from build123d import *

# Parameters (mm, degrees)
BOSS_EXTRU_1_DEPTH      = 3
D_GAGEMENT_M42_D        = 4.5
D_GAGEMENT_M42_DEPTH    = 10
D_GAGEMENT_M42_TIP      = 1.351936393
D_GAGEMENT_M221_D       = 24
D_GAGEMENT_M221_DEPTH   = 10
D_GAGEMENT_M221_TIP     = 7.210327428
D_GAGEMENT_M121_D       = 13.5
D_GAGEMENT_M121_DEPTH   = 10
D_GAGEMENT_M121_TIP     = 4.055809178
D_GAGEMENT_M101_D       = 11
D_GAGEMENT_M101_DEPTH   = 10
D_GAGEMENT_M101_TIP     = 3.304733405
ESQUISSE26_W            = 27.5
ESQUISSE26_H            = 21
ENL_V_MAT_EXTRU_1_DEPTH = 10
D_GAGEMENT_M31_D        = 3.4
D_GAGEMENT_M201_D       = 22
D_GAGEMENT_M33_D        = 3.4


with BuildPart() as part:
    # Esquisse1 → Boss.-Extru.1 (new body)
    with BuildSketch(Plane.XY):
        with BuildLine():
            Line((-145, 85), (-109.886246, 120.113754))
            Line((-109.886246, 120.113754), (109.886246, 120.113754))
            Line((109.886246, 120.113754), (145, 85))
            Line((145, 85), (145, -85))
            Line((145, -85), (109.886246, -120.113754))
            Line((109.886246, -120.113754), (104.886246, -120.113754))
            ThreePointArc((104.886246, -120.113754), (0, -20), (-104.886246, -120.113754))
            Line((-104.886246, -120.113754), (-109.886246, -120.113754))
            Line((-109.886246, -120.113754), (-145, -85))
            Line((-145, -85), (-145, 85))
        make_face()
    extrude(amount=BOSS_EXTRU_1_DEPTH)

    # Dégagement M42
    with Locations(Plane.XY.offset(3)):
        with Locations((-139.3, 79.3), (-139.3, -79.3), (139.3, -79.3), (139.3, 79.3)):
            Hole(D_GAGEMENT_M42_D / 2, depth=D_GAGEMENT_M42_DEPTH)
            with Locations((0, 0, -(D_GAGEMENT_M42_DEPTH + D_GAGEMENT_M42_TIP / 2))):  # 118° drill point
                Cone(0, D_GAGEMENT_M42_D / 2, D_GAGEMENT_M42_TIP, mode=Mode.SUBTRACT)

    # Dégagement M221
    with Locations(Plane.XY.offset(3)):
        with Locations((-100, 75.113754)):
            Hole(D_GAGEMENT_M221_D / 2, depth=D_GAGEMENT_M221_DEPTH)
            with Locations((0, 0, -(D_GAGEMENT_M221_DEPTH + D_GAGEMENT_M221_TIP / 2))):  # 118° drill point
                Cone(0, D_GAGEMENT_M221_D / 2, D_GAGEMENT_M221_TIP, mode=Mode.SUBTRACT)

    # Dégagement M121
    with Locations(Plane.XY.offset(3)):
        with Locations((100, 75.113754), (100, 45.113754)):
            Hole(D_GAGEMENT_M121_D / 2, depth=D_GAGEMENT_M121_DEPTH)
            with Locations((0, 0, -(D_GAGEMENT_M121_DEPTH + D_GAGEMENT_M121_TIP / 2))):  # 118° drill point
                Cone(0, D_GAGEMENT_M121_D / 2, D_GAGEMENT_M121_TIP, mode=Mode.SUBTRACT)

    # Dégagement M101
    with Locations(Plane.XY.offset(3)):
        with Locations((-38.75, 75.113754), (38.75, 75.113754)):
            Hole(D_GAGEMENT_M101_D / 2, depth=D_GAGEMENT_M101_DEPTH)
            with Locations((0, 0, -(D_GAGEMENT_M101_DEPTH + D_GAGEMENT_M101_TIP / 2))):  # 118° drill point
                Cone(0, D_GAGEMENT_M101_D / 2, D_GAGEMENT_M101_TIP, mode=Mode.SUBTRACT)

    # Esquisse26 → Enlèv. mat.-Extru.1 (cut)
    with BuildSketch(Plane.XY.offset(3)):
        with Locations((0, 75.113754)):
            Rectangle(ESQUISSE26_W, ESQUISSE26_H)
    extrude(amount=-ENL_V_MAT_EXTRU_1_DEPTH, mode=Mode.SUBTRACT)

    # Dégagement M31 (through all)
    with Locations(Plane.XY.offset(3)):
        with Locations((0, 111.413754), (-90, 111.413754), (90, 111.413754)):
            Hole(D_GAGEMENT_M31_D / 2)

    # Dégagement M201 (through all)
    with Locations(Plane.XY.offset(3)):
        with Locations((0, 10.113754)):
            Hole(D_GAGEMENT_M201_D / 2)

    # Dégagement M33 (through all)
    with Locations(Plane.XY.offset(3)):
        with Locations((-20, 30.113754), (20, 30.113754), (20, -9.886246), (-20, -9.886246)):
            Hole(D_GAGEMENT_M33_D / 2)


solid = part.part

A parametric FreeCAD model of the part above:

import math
import FreeCAD as App
import Part
import Sketcher
from FreeCAD import Vector


def add_polygon(sketch, points):
    """Adds a closed chain of lines whose ends are joined by coincident constraints."""
    first, n = sketch.GeometryCount, len(points)
    for a, b in zip(points, points[1:] + points[:1]):
        sketch.addGeometry(Part.LineSegment(App.Vector(*a, 0), App.Vector(*b, 0)), False)
    for i in range(n):
        sketch.addConstraint(Sketcher.Constraint("Coincident", first + i, 2, first + (i + 1) % n, 1))

doc = App.newDocument("Part")
body = doc.addObject("PartDesign::Body", "Body")

sketch1 = doc.addObject("Sketcher::SketchObject", "Sketch")
body.addObject(sketch1)
sketch1.AttachmentSupport = (doc.XY_Plane, [""])
sketch1.MapMode = "FlatFace"
sketch1.addGeometry([
    Part.LineSegment(Vector(-110, 120, 0), Vector(-145, 85, 0)),
    Part.LineSegment(Vector(-145, 85, 0), Vector(-145, -85, 0)),
    Part.LineSegment(Vector(-145, -85, 0), Vector(-110, -120, 0)),
    Part.LineSegment(Vector(-110, -120, 0), Vector(-105, -120, 0)),
    Part.ArcOfCircle(Part.Circle(Vector(0, -125, 0), Vector(0, 0, 1), 105), math.radians(3), math.radians(177)),
    Part.LineSegment(Vector(105, -120, 0), Vector(110, -120, 0)),
    Part.LineSegment(Vector(110, -120, 0), Vector(145, -85, 0)),
    Part.LineSegment(Vector(145, -85, 0), Vector(145, 85, 0)),
    Part.LineSegment(Vector(145, 85, 0), Vector(110, 120, 0)),
    Part.LineSegment(Vector(110, 120, 0), Vector(-110, 120, 0)),
], False)
sketch1.addConstraint([
    Sketcher.Constraint("Coincident", 0, 2, 1, 1),
    Sketcher.Constraint("Coincident", 1, 2, 2, 1),
    Sketcher.Constraint("Coincident", 2, 2, 3, 1),
    Sketcher.Constraint("Coincident", 3, 2, 4, 2),
    Sketcher.Constraint("Coincident", 4, 1, 5, 1),
    Sketcher.Constraint("Coincident", 5, 2, 6, 1),
    Sketcher.Constraint("Coincident", 6, 2, 7, 1),
    Sketcher.Constraint("Coincident", 7, 2, 8, 1),
    Sketcher.Constraint("Coincident", 8, 2, 9, 1),
    Sketcher.Constraint("Coincident", 9, 2, 0, 1),
    Sketcher.Constraint("Vertical", 1),
    Sketcher.Constraint("Horizontal", 3),
    Sketcher.Constraint("Horizontal", 5),
    Sketcher.Constraint("Vertical", 7),
    Sketcher.Constraint("Horizontal", 9),
    Sketcher.Constraint("Symmetric", 0, 2, 6, 2, -1, 1),
    Sketcher.Constraint("Symmetric", 2, 2, 8, 2, -1, 1),
    Sketcher.Constraint("Symmetric", 5, 2, 9, 2, -1, 1),
    Sketcher.Constraint("PointOnObject", 4, 3, -2),
    Sketcher.Constraint("Perpendicular", 0, 2),
    Sketcher.Constraint("Perpendicular", 6, 8),
    Sketcher.Constraint("Horizontal", 1, 2, 6, 2),
    Sketcher.Constraint("Vertical", 5, 2, 8, 2),
    Sketcher.Constraint("Radius", 4, 105.0),
    Sketcher.Constraint("DistanceX", 3, 1, 3, 2, 5.0),
    Sketcher.Constraint("DistanceY", 1, 2, 1, 1, 170.0),
    Sketcher.Constraint("DistanceY", 4, 3, -1, 1, 125.0),
    Sketcher.Constraint("DistanceX", 0, 2, -1, 1, 145.0),
])
pad1 = doc.addObject("PartDesign::Pad", "Pad")
body.addObject(pad1)
pad1.Profile = sketch1
pad1.Length = 3

sketch2 = doc.addObject("Sketcher::SketchObject", "Sketch001")
body.addObject(sketch2)
sketch2.AttachmentSupport = (doc.XY_Plane, [""])
sketch2.MapMode = "FlatFace"
sketch2.AttachmentOffset = App.Placement(Vector(0, 0, 3), App.Rotation())
sketch2.addGeometry([
    Part.Circle(Vector(-139.3, 79.3, 0), Vector(0, 0, 1), 2.2),
    Part.Circle(Vector(-139.3, -79.3, 0), Vector(0, 0, 1), 2.2),
    Part.Circle(Vector(139.3, -79.3, 0), Vector(0, 0, 1), 2.2),
    Part.Circle(Vector(139.3, 79.3, 0), Vector(0, 0, 1), 2.2),
], False)
sketch2.addConstraint([
    Sketcher.Constraint("Equal", 0, 1),
    Sketcher.Constraint("Equal", 1, 2),
    Sketcher.Constraint("Equal", 2, 3),
    Sketcher.Constraint("Symmetric", 0, 3, 2, 3, -1, 1),
    Sketcher.Constraint("Symmetric", 1, 3, 3, 3, -1, 1),
    Sketcher.Constraint("Symmetric", 1, 3, 2, 3, -2),
    Sketcher.Constraint("Diameter", 0, 4.5),
    Sketcher.Constraint("DistanceX", 0, 3, -1, 1, 139.3),
    Sketcher.Constraint("DistanceY", -1, 1, 0, 3, 79.3),
])
doc.recompute()
hole = doc.addObject("PartDesign::Hole", "Hole")
body.addObject(hole)
hole.Profile = sketch2
hole.ThreadType = "None"
hole.Diameter = 4.5
hole.DepthType = "Dimension"
hole.Depth = 10
hole.DrillPoint = "Angled"
hole.DrillPointAngle = 118

sketch3 = doc.addObject("Sketcher::SketchObject", "Sketch002")
body.addObject(sketch3)
sketch3.AttachmentSupport = (doc.XY_Plane, [""])
sketch3.MapMode = "FlatFace"
sketch3.AttachmentOffset = App.Placement(Vector(0, 0, 3), App.Rotation())
sketch3.addGeometry(Part.Circle(Vector(-100, 75, 0), Vector(0, 0, 1), 12), False)
sketch3.addConstraint([
    Sketcher.Constraint("Diameter", 0, 24.0),
    Sketcher.Constraint("DistanceX", 0, 3, -1, 1, 100.0),
    Sketcher.Constraint("DistanceY", -1, 1, 0, 3, 75.113754),
])
doc.recompute()
hole2 = doc.addObject("PartDesign::Hole", "Hole001")
body.addObject(hole2)
hole2.Profile = sketch3
hole2.ThreadType = "None"
hole2.Diameter = 24
hole2.DepthType = "Dimension"
hole2.Depth = 10
hole2.DrillPoint = "Angled"
hole2.DrillPointAngle = 118

sketch4 = doc.addObject("Sketcher::SketchObject", "Sketch003")
body.addObject(sketch4)
sketch4.AttachmentSupport = (doc.XY_Plane, [""])
sketch4.MapMode = "FlatFace"
sketch4.AttachmentOffset = App.Placement(Vector(0, 0, 3), App.Rotation())
sketch4.addGeometry([
    Part.Circle(Vector(100, 75, 0), Vector(0, 0, 1), 7),
    Part.Circle(Vector(100, 45, 0), Vector(0, 0, 1), 7),
], False)
sketch4.addConstraint([
    Sketcher.Constraint("Equal", 0, 1),
    Sketcher.Constraint("Vertical", 0, 3, 1, 3),
    Sketcher.Constraint("Diameter", 0, 13.5),
    Sketcher.Constraint("DistanceX", -1, 1, 0, 3, 100.0),
    Sketcher.Constraint("DistanceY", 1, 3, 0, 3, 30.0),
    Sketcher.Constraint("DistanceY", -1, 1, 0, 3, 75.113754),
])
doc.recompute()
hole3 = doc.addObject("PartDesign::Hole", "Hole002")
body.addObject(hole3)
hole3.Profile = sketch4
hole3.ThreadType = "None"
hole3.Diameter = 13.5
hole3.DepthType = "Dimension"
hole3.Depth = 10
hole3.DrillPoint = "Angled"
hole3.DrillPointAngle = 118

sketch5 = doc.addObject("Sketcher::SketchObject", "Sketch004")
body.addObject(sketch5)
sketch5.AttachmentSupport = (doc.XY_Plane, [""])
sketch5.MapMode = "FlatFace"
sketch5.AttachmentOffset = App.Placement(Vector(0, 0, 3), App.Rotation())
sketch5.addGeometry([
    Part.Circle(Vector(-39, 75, 0), Vector(0, 0, 1), 6),
    Part.Circle(Vector(39, 75, 0), Vector(0, 0, 1), 6),
], False)
sketch5.addConstraint([
    Sketcher.Constraint("Equal", 0, 1),
    Sketcher.Constraint("Symmetric", 0, 3, 1, 3, -2),
    Sketcher.Constraint("Diameter", 0, 11.0),
    Sketcher.Constraint("DistanceX", 0, 3, 1, 3, 77.5),
    Sketcher.Constraint("DistanceY", -1, 1, 0, 3, 75.113754),
])
doc.recompute()
hole4 = doc.addObject("PartDesign::Hole", "Hole003")
body.addObject(hole4)
hole4.Profile = sketch5
hole4.ThreadType = "None"
hole4.Diameter = 11
hole4.DepthType = "Dimension"
hole4.Depth = 10
hole4.DrillPoint = "Angled"
hole4.DrillPointAngle = 118

sketch6 = doc.addObject("Sketcher::SketchObject", "Sketch005")
body.addObject(sketch6)
sketch6.AttachmentSupport = (doc.XY_Plane, [""])
sketch6.MapMode = "FlatFace"
sketch6.AttachmentOffset = App.Placement(Vector(0, 0, 3), App.Rotation())
add_polygon(sketch6, [(-14, 86), (-14, 65), (14, 65), (14, 86)])
sketch6.addConstraint([
    Sketcher.Constraint("Vertical", 0),
    Sketcher.Constraint("Horizontal", 1),
    Sketcher.Constraint("Vertical", 2),
    Sketcher.Constraint("Horizontal", 3),
    Sketcher.Constraint("DistanceY", 0, 2, 0, 1, 21.0),
    Sketcher.Constraint("DistanceX", 1, 1, 1, 2, 27.5),
    Sketcher.Constraint("DistanceX", 0, 2, -1, 1, 13.75),
    Sketcher.Constraint("DistanceY", -1, 1, 0, 2, 64.613754),
])
pocket1 = doc.addObject("PartDesign::Pocket", "Pocket")
body.addObject(pocket1)
pocket1.Profile = sketch6
pocket1.Length = 10

sketch7 = doc.addObject("Sketcher::SketchObject", "Sketch006")
body.addObject(sketch7)
sketch7.AttachmentSupport = (doc.XY_Plane, [""])
sketch7.MapMode = "FlatFace"
sketch7.AttachmentOffset = App.Placement(Vector(0, 0, 3), App.Rotation())
sketch7.addGeometry([
    Part.Circle(Vector(0, 111.4, 0), Vector(0, 0, 1), 1.7),
    Part.Circle(Vector(-90, 111.4, 0), Vector(0, 0, 1), 1.7),
    Part.Circle(Vector(90, 111.4, 0), Vector(0, 0, 1), 1.7),
], False)
sketch7.addConstraint([
    Sketcher.Constraint("Equal", 0, 1),
    Sketcher.Constraint("Equal", 1, 2),
    Sketcher.Constraint("Symmetric", 1, 3, 2, 3, -2),
    Sketcher.Constraint("PointOnObject", 0, 3, -2),
    Sketcher.Constraint("Horizontal", 0, 3, 1, 3),
    Sketcher.Constraint("Diameter", 0, 3.4),
    Sketcher.Constraint("DistanceX", 1, 3, -1, 1, 90.0),
    Sketcher.Constraint("DistanceY", -1, 1, 0, 3, 111.413754),
])
doc.recompute()
hole5 = doc.addObject("PartDesign::Hole", "Hole004")
body.addObject(hole5)
hole5.Profile = sketch7
hole5.ThreadType = "None"
hole5.Diameter = 3.4
hole5.DepthType = "ThroughAll"

sketch8 = doc.addObject("Sketcher::SketchObject", "Sketch007")
body.addObject(sketch8)
sketch8.AttachmentSupport = (doc.XY_Plane, [""])
sketch8.MapMode = "FlatFace"
sketch8.AttachmentOffset = App.Placement(Vector(0, 0, 3), App.Rotation())
sketch8.addGeometry(Part.Circle(Vector(0, 10, 0), Vector(0, 0, 1), 11), False)
sketch8.addConstraint([
    Sketcher.Constraint("PointOnObject", 0, 3, -2),
    Sketcher.Constraint("Diameter", 0, 22.0),
    Sketcher.Constraint("DistanceY", -1, 1, 0, 3, 10.113754),
])
doc.recompute()
hole6 = doc.addObject("PartDesign::Hole", "Hole005")
body.addObject(hole6)
hole6.Profile = sketch8
hole6.ThreadType = "None"
hole6.Diameter = 22
hole6.DepthType = "ThroughAll"

sketch9 = doc.addObject("Sketcher::SketchObject", "Sketch008")
body.addObject(sketch9)
sketch9.AttachmentSupport = (doc.XY_Plane, [""])
sketch9.MapMode = "FlatFace"
sketch9.AttachmentOffset = App.Placement(Vector(0, 0, 3), App.Rotation())
sketch9.addGeometry([
    Part.Circle(Vector(-20, 30.1, 0), Vector(0, 0, 1), 1.7),
    Part.Circle(Vector(20, 30.1, 0), Vector(0, 0, 1), 1.7),
    Part.Circle(Vector(20, -9.9, 0), Vector(0, 0, 1), 1.7),
    Part.Circle(Vector(-20, -9.9, 0), Vector(0, 0, 1), 1.7),
], False)
sketch9.addConstraint([
    Sketcher.Constraint("Equal", 0, 1),
    Sketcher.Constraint("Equal", 1, 2),
    Sketcher.Constraint("Equal", 2, 3),
    Sketcher.Constraint("Symmetric", 0, 3, 1, 3, -2),
    Sketcher.Constraint("Symmetric", 2, 3, 3, 3, -2),
    Sketcher.Constraint("Vertical", 1, 3, 2, 3),
    Sketcher.Constraint("Diameter", 0, 3.4),
    Sketcher.Constraint("DistanceX", 0, 3, -1, 1, 20.0),
    Sketcher.Constraint("DistanceY", 2, 3, 1, 3, 40.0),
    Sketcher.Constraint("DistanceY", -1, 1, 0, 3, 30.113754),
])
doc.recompute()
hole7 = doc.addObject("PartDesign::Hole", "Hole006")
body.addObject(hole7)
hole7.Profile = sketch9
hole7.ThreadType = "None"
hole7.Diameter = 3.4
hole7.DepthType = "ThroughAll"

doc.recompute()
